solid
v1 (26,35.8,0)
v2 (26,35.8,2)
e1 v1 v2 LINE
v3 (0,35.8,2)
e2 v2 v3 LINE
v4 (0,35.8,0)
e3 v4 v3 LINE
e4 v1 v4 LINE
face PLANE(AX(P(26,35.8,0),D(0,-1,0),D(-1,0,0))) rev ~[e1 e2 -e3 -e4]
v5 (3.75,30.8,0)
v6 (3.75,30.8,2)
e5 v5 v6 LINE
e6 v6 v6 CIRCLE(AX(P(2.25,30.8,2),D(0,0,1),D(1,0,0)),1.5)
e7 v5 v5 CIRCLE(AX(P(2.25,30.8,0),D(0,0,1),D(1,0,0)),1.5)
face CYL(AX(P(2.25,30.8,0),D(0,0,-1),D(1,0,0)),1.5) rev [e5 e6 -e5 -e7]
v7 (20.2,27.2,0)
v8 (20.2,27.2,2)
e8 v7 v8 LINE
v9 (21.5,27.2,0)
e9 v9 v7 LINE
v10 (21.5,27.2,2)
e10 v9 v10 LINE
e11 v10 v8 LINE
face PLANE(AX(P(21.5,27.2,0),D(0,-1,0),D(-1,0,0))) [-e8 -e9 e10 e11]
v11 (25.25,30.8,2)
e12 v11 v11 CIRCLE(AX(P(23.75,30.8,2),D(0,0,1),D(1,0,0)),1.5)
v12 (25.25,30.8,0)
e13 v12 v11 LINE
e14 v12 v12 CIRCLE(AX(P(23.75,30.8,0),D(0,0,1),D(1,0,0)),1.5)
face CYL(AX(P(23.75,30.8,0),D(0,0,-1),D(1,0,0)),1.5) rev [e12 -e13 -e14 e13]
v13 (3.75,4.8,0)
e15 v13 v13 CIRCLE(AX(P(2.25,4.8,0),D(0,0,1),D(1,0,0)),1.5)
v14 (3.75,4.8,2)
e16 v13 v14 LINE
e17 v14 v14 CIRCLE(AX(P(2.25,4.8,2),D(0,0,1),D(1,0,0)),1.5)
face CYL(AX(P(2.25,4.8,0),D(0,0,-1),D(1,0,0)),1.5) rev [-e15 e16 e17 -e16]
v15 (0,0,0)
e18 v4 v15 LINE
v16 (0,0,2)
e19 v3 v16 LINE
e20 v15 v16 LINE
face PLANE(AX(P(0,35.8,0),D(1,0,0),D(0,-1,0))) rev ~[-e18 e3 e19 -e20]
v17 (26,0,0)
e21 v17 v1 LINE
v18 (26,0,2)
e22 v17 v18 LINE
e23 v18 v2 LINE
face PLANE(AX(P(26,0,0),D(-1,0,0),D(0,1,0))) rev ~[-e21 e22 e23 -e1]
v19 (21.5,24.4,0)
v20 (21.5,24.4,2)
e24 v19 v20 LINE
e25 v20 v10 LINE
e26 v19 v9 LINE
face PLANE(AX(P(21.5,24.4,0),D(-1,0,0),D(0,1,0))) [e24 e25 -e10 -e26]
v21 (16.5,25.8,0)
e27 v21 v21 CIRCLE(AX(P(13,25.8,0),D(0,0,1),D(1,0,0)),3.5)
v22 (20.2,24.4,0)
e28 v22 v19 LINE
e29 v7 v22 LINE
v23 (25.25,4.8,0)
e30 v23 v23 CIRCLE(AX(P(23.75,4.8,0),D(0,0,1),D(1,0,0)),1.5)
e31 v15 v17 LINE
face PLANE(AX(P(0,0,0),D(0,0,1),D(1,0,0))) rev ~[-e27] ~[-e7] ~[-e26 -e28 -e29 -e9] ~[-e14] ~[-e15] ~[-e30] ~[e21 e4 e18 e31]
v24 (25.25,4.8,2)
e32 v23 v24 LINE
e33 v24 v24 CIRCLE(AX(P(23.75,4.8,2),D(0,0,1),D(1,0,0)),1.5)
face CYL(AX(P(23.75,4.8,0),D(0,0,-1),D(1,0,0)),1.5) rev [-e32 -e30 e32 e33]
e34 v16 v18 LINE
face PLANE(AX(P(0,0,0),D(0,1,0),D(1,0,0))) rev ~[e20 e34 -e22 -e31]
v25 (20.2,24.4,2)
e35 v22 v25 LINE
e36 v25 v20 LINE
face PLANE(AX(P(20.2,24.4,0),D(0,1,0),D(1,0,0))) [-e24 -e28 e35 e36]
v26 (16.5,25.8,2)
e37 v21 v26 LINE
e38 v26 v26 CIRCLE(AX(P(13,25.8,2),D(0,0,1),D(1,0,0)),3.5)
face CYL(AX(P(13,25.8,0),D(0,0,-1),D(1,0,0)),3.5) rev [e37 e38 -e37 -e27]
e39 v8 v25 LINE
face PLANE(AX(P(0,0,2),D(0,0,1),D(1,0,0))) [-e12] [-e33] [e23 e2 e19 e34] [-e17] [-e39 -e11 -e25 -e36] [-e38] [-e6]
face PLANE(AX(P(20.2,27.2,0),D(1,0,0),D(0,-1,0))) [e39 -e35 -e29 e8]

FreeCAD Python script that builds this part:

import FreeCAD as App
import Part
import Sketcher

V = App.Vector

doc = App.newDocument("Part")
body = doc.addObject("PartDesign::Body", "Body")

# Sketch on XY plane
sketch1 = body.newObject("Sketcher::SketchObject", "Sketch")
sketch1.AttachmentSupport = (doc.getObject("XY_Plane"), [""])
sketch1.MapMode = "FlatFace"
sketch1.addGeometry([
    Part.LineSegment(V(0, 35.8, 0), V(0, 0, 0)),  # 0
    Part.LineSegment(V(0, 0, 0), V(26, 0, 0)),  # 1
    Part.LineSegment(V(26, 0, 0), V(26, 35.8, 0)),  # 2
    Part.LineSegment(V(26, 35.8, 0), V(0, 35.8, 0)),  # 3
    Part.Circle(V(2.2, 4.8, 0), V(0, 0, 1), 1.5),  # 4
    Part.Circle(V(23.8, 4.8, 0), V(0, 0, 1), 1.5),  # 5
    Part.Circle(V(2.2, 30.8, 0), V(0, 0, 1), 1.5),  # 6
    Part.Circle(V(13, 25.8, 0), V(0, 0, 1), 3.5),  # 7
    Part.LineSegment(V(20.2, 27.2, 0), V(21.5, 27.2, 0)),  # 8
    Part.LineSegment(V(21.5, 27.2, 0), V(21.5, 24.4, 0)),  # 9
    Part.LineSegment(V(21.5, 24.4, 0), V(20.2, 24.4, 0)),  # 10
    Part.LineSegment(V(20.2, 24.4, 0), V(20.2, 27.2, 0)),  # 11
    Part.Circle(V(23.8, 30.8, 0), V(0, 0, 1), 1.5),  # 12
], False)
sketch1.addConstraint([
    Sketcher.Constraint("Coincident", 0, 2, 1, 1),
    Sketcher.Constraint("Coincident", 1, 2, 2, 1),
    Sketcher.Constraint("Coincident", 2, 2, 3, 1),
    Sketcher.Constraint("Coincident", 3, 2, 0, 1),
    Sketcher.Constraint("Coincident", 8, 2, 9, 1),
    Sketcher.Constraint("Coincident", 9, 2, 10, 1),
    Sketcher.Constraint("Coincident", 10, 2, 11, 1),
    Sketcher.Constraint("Coincident", 11, 2, 8, 1),
    Sketcher.Constraint("Vertical", 0),
    Sketcher.Constraint("Horizontal", 1),
    Sketcher.Constraint("Vertical", 2),
    Sketcher.Constraint("Horizontal", 3),
    Sketcher.Constraint("Horizontal", 8),
    Sketcher.Constraint("Vertical", 9),
    Sketcher.Constraint("Horizontal", 10),
    Sketcher.Constraint("Vertical", 11),
    Sketcher.Constraint("Coincident", 0, 2, -1, 1),
    Sketcher.Constraint("Equal", 4, 5),
    Sketcher.Constraint("Equal", 5, 6),
    Sketcher.Constraint("Equal", 6, 12),
    Sketcher.Constraint("Horizontal", 4, 3, 5, 3),
    Sketcher.Constraint("Horizontal", 6, 3, 12, 3),
    Sketcher.Constraint("Vertical", 4, 3, 6, 3),
    Sketcher.Constraint("Vertical", 5, 3, 12, 3),
    Sketcher.Constraint("Diameter", 4, 3.0),
    Sketcher.Constraint("Diameter", 7, 7.0),
    Sketcher.Constraint("DistanceX", 1, 1, 1, 2, 26.0),
    Sketcher.Constraint("DistanceX", 8, 1, 8, 2, 1.3),
    Sketcher.Constraint("DistanceY", 0, 2, 0, 1, 35.8),
    Sketcher.Constraint("DistanceY", 9, 2, 9, 1, 2.8),
    Sketcher.Constraint("DistanceX", -1, 1, 7, 3, 13.0),
    Sketcher.Constraint("DistanceY", 4, 3, 6, 3, 26.0),
    Sketcher.Constraint("DistanceY", 7, 3, 6, 3, 5.0),
    Sketcher.Constraint("DistanceY", 12, 3, 2, 2, 5.0),
    Sketcher.Constraint("DistanceY", 8, 2, 2, 2, 8.6),
    Sketcher.Constraint("DistanceX", 7, 3, 10, 2, 7.2),
    Sketcher.Constraint("DistanceX", -1, 1, 4, 3, 2.25),
    Sketcher.Constraint("DistanceX", 5, 3, 1, 2, 2.25),
])
pad1 = body.newObject("PartDesign::Pad", "Pad")
pad1.Profile = sketch1
pad1.Length = 2

doc.recompute()
